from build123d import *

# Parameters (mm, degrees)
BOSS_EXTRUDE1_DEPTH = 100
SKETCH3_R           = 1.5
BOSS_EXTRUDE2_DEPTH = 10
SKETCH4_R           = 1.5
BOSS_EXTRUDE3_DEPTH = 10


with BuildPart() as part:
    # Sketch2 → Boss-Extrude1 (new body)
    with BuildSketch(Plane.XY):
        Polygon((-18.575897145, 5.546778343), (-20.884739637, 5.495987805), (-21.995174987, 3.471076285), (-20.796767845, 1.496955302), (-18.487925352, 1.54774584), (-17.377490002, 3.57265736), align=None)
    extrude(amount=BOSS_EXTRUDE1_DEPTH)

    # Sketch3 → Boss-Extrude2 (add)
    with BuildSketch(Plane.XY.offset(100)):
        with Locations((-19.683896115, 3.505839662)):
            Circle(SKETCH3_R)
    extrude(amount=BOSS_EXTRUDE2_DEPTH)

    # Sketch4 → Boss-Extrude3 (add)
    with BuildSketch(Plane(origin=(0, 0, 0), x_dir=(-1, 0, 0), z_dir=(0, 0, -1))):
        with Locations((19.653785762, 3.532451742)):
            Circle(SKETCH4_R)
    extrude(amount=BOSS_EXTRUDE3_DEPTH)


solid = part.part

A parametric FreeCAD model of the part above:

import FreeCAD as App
import Part
import Sketcher
Q = App.Units.Quantity


def add_polygon(sketch, points):
    """Adds a closed chain of lines whose ends are joined by coincident constraints."""
    first, n = sketch.GeometryCount, len(points)
    for a, b in zip(points, points[1:] + points[:1]):
        sketch.addGeometry(Part.LineSegment(App.Vector(*a, 0), App.Vector(*b, 0)), False)
    for i in range(n):
        sketch.addConstraint(Sketcher.Constraint("Coincident", first + i, 2, first + (i + 1) % n, 1))

doc = App.newDocument("Part")
body = doc.addObject("PartDesign::Body", "Body")

# Sketch on XY plane
sketch1 = doc.addObject("Sketcher::SketchObject", "Sketch")
body.addObject(sketch1)
sketch1.AttachmentSupport = (doc.XY_Plane, [""])
sketch1.MapMode = "FlatFace"
add_polygon(sketch1, [(-18.575897, 5.546778), (-20.88474, 5.495988), (-21.995175, 3.471076), (-20.796768, 1.496955), (-18.487925, 1.547746), (-17.37749, 3.572657)])  # lines 0-5
sketch1.addConstraint([
    Sketcher.Constraint("Distance", 0, Q("2.309401 mm")),
    Sketcher.Constraint("Distance", 1, Q("2.309401 mm")),
    Sketcher.Constraint("Distance", 2, Q("2.309401 mm")),
    Sketcher.Constraint("Distance", 3, Q("2.309401 mm")),
    Sketcher.Constraint("Distance", 4, Q("2.309401 mm")),
    Sketcher.Constraint("Distance", 5, Q("2.309401 mm")),
    Sketcher.Constraint("DistanceX", 0, 2, -1, 1, Q("20.88474 mm")),
    Sketcher.Constraint("DistanceX", 4, 2, -1, 1, Q("17.37749 mm")),
    Sketcher.Constraint("DistanceY", -1, 1, 5, 2, Q("5.546778 mm")),
    Sketcher.Constraint("DistanceY", 1, 2, 0, 2, Q("2.024912 mm")),
    Sketcher.Constraint("DistanceY", 2, 2, 1, 2, Q("1.974121 mm")),
    Sketcher.Constraint("DistanceY", 2, 2, 3, 2, Q("0.050791 mm")),
])
pad1 = doc.addObject("PartDesign::Pad", "Pad")
body.addObject(pad1)
pad1.Profile = sketch1
pad1.Length = 100

# Sketch on XY plane
sketch2 = doc.addObject("Sketcher::SketchObject", "Sketch001")
body.addObject(sketch2)
sketch2.AttachmentSupport = (doc.XY_Plane, [""])
sketch2.MapMode = "FlatFace"
sketch2.AttachmentOffset = App.Placement(App.Vector(0, 0, 100), App.Rotation())
sketch2.addGeometry(Part.Circle(App.Vector(-19.7, 3.5, 0), App.Vector(0, 0, 1), 1.5), False)
sketch2.addConstraint([
    Sketcher.Constraint("Diameter", 0, Q("3 mm")),
    Sketcher.Constraint("DistanceY", -1, 1, 0, 3, Q("3.50584 mm")),
    Sketcher.Constraint("DistanceX", 0, 3, -1, 1, Q("19.683896 mm")),
])
pad2 = doc.addObject("PartDesign::Pad", "Pad001")
body.addObject(pad2)
pad2.Profile = sketch2
pad2.Length = 10

# Sketch on XY plane
sketch3 = doc.addObject("Sketcher::SketchObject", "Sketch002")
body.addObject(sketch3)
sketch3.AttachmentSupport = (doc.XY_Plane, [""])
sketch3.MapMode = "FlatFace"
sketch3.addGeometry(Part.Circle(App.Vector(-19.7, 3.5, 0), App.Vector(0, 0, 1), 1.5), False)
sketch3.addConstraint([
    Sketcher.Constraint("Diameter", 0, Q("3 mm")),
    Sketcher.Constraint("DistanceY", -1, 1, 0, 3, Q("3.532452 mm")),
    Sketcher.Constraint("DistanceX", 0, 3, -1, 1, Q("19.653786 mm")),
])
pad3 = doc.addObject("PartDesign::Pad", "Pad002")
body.addObject(pad3)
pad3.Profile = sketch3
pad3.Length = 10
pad3.Reversed = True

doc.recompute()
